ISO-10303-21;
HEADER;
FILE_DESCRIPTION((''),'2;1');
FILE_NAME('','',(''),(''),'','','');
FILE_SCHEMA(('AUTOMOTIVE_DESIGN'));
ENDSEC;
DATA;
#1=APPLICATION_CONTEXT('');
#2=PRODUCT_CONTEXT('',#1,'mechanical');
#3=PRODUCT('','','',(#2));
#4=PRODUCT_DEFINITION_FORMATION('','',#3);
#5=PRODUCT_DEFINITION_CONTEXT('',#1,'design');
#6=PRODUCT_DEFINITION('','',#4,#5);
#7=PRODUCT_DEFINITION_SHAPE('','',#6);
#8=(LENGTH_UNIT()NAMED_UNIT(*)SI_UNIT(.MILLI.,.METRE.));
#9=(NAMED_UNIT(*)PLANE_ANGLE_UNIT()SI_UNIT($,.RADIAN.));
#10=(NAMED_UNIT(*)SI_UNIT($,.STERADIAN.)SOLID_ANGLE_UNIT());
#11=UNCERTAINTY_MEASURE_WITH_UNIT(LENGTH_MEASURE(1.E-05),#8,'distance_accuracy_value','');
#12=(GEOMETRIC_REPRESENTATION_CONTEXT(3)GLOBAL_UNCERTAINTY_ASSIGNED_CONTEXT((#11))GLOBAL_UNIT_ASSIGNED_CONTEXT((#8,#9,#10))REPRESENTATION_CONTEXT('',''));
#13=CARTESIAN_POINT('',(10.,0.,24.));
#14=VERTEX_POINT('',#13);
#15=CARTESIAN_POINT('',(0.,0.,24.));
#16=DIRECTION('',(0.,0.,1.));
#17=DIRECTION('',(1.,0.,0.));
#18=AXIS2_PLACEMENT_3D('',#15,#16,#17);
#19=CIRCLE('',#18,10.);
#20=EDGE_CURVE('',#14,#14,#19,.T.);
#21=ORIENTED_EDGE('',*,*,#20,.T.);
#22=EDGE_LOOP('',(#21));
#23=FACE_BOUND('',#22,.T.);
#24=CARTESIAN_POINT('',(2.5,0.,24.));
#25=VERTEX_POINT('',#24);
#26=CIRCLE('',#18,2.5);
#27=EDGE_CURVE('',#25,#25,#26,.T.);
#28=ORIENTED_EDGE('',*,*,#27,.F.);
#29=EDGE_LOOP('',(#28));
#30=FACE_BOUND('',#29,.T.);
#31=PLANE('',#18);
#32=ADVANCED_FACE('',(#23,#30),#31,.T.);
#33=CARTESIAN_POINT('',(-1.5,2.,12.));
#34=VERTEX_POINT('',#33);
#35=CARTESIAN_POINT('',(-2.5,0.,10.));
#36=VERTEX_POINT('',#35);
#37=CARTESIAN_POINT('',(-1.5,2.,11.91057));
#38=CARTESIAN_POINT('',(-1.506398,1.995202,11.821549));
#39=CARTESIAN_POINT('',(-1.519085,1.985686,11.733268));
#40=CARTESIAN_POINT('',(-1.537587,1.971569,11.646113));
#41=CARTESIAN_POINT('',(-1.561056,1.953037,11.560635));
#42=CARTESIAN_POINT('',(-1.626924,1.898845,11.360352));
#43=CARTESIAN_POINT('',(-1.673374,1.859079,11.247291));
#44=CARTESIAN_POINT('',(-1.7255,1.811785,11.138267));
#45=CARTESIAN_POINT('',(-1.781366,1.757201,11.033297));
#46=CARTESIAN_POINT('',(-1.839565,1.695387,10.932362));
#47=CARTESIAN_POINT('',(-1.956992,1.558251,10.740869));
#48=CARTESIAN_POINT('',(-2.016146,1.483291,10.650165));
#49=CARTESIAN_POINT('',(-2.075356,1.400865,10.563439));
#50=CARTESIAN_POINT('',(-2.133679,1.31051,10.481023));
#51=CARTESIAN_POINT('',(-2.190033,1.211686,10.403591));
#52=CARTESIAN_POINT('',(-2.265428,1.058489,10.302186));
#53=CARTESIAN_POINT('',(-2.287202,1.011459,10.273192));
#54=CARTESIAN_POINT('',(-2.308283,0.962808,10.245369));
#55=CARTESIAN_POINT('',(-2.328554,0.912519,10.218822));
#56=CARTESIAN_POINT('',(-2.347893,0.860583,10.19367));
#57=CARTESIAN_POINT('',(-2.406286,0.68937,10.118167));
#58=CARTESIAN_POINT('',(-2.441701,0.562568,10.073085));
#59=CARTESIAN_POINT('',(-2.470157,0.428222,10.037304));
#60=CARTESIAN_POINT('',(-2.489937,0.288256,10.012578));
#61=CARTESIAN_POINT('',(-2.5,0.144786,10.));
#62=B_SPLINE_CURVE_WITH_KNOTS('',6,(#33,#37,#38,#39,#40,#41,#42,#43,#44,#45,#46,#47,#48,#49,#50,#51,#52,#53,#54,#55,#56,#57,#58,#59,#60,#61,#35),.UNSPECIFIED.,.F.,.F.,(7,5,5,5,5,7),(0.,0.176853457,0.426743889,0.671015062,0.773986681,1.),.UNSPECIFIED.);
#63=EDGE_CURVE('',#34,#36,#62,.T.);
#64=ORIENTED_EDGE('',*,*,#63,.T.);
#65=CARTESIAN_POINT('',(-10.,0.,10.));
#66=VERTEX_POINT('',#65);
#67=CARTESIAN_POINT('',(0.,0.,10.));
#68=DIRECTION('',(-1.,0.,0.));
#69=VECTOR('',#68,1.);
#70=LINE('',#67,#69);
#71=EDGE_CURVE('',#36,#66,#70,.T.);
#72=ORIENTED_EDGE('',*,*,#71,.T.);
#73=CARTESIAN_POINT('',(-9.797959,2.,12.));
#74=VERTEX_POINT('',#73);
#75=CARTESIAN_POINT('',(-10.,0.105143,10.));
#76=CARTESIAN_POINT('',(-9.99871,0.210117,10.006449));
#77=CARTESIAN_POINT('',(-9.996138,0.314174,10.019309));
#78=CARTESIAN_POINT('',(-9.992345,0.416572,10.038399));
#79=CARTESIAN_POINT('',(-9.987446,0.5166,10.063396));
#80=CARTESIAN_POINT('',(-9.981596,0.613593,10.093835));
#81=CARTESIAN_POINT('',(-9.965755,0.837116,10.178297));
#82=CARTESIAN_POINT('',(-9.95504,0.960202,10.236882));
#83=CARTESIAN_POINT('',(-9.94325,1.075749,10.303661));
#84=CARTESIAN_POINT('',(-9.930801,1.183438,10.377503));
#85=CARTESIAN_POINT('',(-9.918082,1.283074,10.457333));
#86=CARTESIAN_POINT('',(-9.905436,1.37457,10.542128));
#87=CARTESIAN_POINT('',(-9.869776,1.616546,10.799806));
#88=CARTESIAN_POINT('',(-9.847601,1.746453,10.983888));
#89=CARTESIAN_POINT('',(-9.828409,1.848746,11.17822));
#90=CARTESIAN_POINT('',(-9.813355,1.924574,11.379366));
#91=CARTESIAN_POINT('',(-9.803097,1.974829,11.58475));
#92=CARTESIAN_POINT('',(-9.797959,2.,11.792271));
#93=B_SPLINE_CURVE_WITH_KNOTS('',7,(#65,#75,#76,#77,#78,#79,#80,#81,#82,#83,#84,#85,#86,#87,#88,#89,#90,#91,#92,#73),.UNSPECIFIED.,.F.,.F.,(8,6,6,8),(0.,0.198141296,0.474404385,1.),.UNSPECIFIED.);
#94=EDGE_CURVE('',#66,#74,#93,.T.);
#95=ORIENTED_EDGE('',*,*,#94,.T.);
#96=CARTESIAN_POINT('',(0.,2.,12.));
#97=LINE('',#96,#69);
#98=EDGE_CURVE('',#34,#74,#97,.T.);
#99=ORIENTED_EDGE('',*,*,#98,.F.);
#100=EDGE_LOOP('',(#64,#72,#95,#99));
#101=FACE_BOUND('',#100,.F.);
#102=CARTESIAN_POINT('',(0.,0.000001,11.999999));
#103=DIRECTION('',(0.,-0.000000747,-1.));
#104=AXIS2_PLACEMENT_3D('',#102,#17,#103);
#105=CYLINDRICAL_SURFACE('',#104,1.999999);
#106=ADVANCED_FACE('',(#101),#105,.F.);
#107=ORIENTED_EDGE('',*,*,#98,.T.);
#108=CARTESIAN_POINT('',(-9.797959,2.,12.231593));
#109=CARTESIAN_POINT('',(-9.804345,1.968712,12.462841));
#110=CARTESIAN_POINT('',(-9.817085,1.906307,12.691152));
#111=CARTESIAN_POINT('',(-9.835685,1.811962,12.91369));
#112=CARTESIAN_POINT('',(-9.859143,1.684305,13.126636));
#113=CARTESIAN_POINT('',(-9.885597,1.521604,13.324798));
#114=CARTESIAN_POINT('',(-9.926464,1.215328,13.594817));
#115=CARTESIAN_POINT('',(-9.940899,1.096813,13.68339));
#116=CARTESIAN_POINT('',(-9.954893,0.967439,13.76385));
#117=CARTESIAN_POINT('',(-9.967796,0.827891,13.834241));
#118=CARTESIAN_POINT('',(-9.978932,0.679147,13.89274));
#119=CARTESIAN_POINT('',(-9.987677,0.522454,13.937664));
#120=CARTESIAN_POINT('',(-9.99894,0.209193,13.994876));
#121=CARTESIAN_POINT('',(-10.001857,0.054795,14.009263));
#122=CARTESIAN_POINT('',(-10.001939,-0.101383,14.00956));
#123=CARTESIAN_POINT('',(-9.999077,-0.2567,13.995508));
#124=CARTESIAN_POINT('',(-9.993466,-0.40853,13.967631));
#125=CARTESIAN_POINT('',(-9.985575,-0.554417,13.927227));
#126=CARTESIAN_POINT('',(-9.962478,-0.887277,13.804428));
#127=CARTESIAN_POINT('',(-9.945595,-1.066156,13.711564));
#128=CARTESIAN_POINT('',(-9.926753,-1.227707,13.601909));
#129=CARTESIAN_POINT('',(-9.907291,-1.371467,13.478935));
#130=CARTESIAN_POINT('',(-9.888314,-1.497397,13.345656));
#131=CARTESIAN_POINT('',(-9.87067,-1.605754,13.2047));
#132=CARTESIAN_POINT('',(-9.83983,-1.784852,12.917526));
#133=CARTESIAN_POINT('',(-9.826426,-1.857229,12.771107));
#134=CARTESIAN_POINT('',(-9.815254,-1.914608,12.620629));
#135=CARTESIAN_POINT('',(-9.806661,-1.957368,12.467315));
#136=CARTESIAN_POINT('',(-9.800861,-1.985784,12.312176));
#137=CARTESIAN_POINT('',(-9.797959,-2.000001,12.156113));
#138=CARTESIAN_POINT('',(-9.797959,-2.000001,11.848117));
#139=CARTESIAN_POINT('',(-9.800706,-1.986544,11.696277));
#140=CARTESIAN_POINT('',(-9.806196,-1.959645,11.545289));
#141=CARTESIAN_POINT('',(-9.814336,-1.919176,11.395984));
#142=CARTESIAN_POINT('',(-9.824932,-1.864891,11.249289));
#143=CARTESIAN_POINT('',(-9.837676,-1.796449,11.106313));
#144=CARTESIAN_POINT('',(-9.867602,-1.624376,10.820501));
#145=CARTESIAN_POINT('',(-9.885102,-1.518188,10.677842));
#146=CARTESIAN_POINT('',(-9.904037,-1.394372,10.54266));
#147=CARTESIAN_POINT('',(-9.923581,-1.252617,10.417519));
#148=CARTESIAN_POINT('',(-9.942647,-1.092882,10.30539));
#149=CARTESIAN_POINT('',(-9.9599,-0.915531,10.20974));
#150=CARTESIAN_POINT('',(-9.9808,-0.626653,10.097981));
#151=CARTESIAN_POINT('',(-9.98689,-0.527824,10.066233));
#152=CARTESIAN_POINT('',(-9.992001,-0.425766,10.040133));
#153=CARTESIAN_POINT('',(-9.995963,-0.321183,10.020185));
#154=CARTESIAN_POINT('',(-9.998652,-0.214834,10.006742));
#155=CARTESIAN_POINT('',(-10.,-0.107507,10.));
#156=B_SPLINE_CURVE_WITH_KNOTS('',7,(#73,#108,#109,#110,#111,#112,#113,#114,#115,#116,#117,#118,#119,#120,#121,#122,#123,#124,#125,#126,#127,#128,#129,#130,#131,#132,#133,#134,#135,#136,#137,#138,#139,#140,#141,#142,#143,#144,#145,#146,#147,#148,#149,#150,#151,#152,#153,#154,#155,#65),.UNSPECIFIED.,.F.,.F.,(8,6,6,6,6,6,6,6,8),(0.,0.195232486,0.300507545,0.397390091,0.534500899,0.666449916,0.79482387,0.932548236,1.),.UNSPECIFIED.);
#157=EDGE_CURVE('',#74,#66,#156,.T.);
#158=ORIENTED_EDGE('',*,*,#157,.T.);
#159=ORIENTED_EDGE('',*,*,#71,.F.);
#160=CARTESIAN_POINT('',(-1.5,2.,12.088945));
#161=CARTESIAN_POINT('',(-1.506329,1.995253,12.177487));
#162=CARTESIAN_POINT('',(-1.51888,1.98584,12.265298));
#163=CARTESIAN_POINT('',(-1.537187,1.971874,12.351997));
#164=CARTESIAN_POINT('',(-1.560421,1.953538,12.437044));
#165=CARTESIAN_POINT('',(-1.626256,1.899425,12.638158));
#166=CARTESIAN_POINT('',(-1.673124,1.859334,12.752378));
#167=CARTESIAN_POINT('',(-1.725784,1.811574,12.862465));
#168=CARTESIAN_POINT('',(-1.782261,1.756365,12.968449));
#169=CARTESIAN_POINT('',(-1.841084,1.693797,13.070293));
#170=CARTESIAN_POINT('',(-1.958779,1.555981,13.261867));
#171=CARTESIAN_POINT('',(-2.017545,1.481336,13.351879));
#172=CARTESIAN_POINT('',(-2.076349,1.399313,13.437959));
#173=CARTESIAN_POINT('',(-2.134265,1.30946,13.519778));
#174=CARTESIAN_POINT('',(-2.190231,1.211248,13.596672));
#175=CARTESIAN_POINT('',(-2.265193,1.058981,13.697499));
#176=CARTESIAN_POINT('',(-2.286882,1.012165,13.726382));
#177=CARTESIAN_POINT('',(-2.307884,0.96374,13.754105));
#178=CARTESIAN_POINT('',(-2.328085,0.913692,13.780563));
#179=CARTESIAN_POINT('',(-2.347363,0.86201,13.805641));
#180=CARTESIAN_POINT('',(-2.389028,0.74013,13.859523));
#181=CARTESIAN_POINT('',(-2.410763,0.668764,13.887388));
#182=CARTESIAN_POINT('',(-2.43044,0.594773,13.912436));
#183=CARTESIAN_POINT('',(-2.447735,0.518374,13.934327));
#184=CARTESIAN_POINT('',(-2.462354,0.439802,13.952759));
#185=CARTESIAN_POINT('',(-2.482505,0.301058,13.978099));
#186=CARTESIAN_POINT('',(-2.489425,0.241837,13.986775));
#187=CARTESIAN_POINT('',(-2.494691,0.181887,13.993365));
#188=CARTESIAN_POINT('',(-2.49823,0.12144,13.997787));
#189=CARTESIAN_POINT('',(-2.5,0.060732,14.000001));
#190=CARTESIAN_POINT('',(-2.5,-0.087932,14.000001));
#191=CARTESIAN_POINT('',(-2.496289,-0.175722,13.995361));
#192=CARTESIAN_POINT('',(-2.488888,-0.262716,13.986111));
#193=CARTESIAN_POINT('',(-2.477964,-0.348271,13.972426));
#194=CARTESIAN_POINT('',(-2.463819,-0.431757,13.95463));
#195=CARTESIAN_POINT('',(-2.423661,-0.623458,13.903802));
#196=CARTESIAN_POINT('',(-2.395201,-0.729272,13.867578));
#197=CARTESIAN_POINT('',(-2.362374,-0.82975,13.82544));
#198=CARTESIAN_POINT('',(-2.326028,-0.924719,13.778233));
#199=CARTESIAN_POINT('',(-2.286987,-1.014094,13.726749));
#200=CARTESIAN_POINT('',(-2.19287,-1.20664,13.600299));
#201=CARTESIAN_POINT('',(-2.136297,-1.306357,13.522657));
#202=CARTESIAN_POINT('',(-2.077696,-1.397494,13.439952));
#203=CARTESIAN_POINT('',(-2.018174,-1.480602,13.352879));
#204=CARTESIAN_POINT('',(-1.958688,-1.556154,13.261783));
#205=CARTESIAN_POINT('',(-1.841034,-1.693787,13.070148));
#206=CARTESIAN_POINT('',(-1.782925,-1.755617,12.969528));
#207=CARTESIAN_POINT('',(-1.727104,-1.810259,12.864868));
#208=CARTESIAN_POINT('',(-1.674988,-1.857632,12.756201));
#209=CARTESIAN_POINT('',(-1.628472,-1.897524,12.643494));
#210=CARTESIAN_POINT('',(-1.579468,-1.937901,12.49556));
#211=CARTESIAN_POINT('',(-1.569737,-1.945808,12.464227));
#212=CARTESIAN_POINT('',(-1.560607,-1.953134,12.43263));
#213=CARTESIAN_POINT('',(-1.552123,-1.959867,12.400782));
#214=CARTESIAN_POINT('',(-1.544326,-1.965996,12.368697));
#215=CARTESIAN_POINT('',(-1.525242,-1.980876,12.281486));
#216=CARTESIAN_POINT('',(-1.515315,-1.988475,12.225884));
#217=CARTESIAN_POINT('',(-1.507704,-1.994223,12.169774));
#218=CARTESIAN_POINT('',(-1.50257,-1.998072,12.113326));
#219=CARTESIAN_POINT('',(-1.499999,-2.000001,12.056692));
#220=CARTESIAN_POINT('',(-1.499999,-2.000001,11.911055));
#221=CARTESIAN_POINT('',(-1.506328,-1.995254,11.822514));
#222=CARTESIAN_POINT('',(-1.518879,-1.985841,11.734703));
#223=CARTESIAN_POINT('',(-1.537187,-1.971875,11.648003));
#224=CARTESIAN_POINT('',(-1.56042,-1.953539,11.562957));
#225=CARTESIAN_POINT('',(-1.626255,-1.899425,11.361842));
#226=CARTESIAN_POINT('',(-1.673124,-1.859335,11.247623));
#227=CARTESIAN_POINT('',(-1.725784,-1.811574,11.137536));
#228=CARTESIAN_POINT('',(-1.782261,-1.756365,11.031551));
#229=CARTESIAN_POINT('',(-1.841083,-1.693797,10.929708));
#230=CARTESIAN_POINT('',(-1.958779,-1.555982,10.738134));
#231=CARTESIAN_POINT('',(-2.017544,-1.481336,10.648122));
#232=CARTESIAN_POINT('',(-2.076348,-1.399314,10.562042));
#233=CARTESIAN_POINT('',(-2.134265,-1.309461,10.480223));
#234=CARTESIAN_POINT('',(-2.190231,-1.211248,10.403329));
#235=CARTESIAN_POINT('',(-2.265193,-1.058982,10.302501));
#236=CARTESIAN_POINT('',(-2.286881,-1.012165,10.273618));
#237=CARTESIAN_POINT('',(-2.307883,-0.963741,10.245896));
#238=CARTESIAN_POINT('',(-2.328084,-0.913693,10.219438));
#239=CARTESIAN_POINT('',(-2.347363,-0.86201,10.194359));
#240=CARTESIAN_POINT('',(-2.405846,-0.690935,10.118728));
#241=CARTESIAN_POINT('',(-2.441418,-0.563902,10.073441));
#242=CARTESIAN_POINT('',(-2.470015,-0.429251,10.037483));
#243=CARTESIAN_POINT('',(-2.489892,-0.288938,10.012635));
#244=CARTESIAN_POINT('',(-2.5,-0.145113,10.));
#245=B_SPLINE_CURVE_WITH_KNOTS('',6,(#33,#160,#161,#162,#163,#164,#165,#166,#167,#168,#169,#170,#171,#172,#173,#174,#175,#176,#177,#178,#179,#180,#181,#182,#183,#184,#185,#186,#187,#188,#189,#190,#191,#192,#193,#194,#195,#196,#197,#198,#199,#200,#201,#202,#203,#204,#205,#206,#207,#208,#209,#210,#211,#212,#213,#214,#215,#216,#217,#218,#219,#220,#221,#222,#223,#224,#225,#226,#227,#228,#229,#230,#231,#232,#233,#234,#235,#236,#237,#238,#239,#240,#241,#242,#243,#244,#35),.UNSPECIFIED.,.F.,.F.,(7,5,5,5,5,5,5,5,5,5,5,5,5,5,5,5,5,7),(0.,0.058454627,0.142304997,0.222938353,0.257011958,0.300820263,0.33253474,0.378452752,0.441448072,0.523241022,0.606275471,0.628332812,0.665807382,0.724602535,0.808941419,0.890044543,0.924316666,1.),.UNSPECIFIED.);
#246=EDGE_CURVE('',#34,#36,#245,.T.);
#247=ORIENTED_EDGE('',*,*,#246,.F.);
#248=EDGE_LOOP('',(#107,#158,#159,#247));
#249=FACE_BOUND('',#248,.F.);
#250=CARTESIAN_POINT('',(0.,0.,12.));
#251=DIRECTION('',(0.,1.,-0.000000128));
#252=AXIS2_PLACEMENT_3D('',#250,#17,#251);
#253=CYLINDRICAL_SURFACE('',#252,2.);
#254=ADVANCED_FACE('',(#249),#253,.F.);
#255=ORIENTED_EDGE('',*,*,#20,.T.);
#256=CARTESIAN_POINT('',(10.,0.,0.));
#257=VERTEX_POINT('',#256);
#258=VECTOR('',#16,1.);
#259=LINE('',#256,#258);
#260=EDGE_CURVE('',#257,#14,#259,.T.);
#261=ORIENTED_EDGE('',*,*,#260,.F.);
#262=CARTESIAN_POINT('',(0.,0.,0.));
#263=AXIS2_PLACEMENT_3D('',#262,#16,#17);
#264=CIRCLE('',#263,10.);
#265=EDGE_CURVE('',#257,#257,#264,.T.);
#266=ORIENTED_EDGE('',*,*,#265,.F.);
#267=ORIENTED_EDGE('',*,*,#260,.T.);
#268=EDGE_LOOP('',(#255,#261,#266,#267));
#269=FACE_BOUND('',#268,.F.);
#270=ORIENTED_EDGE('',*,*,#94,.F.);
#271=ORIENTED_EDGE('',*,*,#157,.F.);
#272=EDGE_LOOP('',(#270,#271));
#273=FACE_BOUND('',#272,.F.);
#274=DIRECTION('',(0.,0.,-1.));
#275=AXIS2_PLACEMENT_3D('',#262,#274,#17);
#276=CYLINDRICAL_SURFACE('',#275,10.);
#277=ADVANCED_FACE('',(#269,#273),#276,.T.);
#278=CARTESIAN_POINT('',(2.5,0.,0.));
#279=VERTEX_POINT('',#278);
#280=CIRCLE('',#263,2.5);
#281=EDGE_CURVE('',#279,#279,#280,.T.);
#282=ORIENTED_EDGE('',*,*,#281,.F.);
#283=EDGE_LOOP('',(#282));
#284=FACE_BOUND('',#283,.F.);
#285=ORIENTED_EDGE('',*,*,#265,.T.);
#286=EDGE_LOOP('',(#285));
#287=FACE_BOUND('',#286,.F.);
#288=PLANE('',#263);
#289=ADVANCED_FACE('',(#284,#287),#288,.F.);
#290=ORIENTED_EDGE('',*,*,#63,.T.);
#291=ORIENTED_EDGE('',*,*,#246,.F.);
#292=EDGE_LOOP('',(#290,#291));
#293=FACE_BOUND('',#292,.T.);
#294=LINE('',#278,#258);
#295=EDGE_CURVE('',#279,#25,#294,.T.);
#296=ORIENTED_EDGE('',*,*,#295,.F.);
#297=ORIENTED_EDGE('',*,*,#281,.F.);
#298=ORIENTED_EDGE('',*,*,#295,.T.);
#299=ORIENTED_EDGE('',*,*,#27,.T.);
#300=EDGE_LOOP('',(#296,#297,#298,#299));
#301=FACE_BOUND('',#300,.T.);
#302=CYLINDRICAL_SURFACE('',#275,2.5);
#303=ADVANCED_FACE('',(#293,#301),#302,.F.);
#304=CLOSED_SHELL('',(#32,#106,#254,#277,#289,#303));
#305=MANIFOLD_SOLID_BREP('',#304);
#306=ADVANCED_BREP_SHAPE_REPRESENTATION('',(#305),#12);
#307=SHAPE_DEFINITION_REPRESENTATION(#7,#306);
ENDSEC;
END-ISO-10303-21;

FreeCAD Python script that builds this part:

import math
import FreeCAD as App
import Part
import Sketcher
from FreeCAD import Vector

doc = App.newDocument("Part")
params = doc.addObject("Spreadsheet::Sheet", "Params")
for row, (alias, value) in enumerate([
    ("sketch1_diameter", "20 mm"),
    ("sketch1_diameter2", "5 mm"),
    ("pad1_length", "24 mm"),
    ("sketch2_radius", "1.999999 mm"),
    ("pocket1_length", "10 mm"),
], start=1):
    params.set(f"A{row}", alias)
    params.set(f"B{row}", "=" + value)
    params.setAlias(f"B{row}", alias)

body = doc.addObject("PartDesign::Body", "Body")

sketch1 = doc.addObject("Sketcher::SketchObject", "Sketch")
body.addObject(sketch1)
sketch1.AttachmentSupport = (doc.XY_Plane, [""])
sketch1.MapMode = "FlatFace"
sketch1.addGeometry(Part.Circle(Vector(0, 0, 0), Vector(0, 0, 1), 10), False)
sketch1.addGeometry(Part.Circle(Vector(0, 0, 0), Vector(0, 0, 1), 2.5), False)
sketch1.addConstraint(Sketcher.Constraint("Coincident", 0, 3, -1, 1))
sketch1.addConstraint(Sketcher.Constraint("Coincident", 1, 3, -1, 1))
sketch1.addConstraint(Sketcher.Constraint("Diameter", 0, 20.0))
sketch1.addConstraint(Sketcher.Constraint("Diameter", 1, 5.0))
sketch1.setExpression("Constraints[2]", "Params.sketch1_diameter")
sketch1.setExpression("Constraints[3]", "Params.sketch1_diameter2")
pad1 = doc.addObject("PartDesign::Pad", "Pad")
body.addObject(pad1)
pad1.Profile = sketch1
pad1.setExpression("Length", "Params.pad1_length")

sketch2 = doc.addObject("Sketcher::SketchObject", "Sketch001")
body.addObject(sketch2)
sketch2.AttachmentSupport = (doc.YZ_Plane, [""])
sketch2.MapMode = "FlatFace"
sketch2.addGeometry(Part.ArcOfCircle(Part.Circle(Vector(0, 12, 0), Vector(0, 0, 1), 2), math.radians(-90), math.radians(0)), False)
sketch2.addGeometry(Part.ArcOfCircle(Part.Circle(Vector(0, 12, 0), Vector(0, 0, 1), 2), math.radians(0), math.radians(270)), False)
sketch2.addConstraint(Sketcher.Constraint("Tangent", 0, 1, 1, 2))
sketch2.addConstraint(Sketcher.Constraint("Coincident", 1, 1, 0, 2))
sketch2.addConstraint(Sketcher.Constraint("PointOnObject", 0, 3, -2))
sketch2.addConstraint(Sketcher.Constraint("PointOnObject", 0, 1, -2))
sketch2.addConstraint(Sketcher.Constraint("Horizontal", 0, 3, 1, 1))
sketch2.addConstraint(Sketcher.Constraint("Radius", 0, 1.999999))
sketch2.addConstraint(Sketcher.Constraint("DistanceY", -1, 1, 0, 3, 11.999999))
sketch2.setExpression("Constraints[5]", "Params.sketch2_radius")
pocket1 = doc.addObject("PartDesign::Pocket", "Pocket")
body.addObject(pocket1)
pocket1.Profile = sketch2
pocket1.setExpression("Length", "Params.pocket1_length")

doc.recompute()
